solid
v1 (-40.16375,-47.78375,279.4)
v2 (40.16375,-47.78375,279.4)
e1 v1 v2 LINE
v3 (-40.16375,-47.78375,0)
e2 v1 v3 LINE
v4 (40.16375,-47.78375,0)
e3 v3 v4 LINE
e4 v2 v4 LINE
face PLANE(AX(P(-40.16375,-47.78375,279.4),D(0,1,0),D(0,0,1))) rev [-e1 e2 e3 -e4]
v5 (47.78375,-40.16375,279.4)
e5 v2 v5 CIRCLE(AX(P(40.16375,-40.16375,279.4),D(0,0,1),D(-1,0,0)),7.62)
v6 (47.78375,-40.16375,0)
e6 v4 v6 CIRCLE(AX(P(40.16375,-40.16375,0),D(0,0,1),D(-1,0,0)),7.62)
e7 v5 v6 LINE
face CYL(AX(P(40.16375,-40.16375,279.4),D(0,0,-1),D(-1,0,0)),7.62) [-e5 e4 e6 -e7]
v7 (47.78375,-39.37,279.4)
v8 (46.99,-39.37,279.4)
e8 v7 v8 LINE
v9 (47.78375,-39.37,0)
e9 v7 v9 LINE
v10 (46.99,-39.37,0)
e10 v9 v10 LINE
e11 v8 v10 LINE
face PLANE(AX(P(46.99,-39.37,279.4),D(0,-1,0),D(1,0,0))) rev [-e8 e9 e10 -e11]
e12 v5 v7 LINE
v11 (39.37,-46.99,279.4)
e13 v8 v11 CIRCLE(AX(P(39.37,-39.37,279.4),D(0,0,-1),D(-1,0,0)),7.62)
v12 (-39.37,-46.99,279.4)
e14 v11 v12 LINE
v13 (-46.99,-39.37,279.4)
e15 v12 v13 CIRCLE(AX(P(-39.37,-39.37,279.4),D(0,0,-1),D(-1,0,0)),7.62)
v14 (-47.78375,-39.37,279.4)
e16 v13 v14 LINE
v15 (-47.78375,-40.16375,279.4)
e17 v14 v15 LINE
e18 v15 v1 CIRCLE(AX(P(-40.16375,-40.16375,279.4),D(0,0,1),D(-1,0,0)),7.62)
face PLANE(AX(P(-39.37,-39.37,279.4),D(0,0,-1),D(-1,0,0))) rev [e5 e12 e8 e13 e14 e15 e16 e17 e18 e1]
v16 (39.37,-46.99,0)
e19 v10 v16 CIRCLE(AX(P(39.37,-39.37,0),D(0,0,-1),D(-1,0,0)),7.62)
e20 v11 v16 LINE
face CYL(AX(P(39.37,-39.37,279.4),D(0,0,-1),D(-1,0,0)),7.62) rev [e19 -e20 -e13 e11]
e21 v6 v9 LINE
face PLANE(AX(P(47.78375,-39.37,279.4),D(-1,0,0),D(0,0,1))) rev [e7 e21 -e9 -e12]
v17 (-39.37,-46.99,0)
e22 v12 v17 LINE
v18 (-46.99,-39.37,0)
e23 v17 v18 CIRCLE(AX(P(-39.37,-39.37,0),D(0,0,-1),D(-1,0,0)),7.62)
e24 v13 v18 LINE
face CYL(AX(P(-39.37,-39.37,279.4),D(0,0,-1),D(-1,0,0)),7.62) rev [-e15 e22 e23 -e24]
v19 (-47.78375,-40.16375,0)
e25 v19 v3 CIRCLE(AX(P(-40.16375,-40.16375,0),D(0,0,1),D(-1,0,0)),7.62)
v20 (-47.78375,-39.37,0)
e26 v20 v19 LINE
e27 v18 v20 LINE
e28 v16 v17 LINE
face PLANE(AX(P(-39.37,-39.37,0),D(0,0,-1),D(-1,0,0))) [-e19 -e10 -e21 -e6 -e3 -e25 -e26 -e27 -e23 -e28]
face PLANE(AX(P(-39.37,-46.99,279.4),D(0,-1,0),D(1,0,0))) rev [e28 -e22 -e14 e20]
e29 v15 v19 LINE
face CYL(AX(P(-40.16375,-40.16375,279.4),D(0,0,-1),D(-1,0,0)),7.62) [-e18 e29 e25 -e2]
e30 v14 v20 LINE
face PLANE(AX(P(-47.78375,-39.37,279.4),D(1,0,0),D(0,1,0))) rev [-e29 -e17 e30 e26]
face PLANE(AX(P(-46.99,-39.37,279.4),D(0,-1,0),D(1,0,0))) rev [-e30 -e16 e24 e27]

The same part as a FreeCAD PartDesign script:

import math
import FreeCAD as App
import Part
import Sketcher

V = App.Vector
Q = App.Units.Quantity

doc = App.newDocument("Part")
body = doc.addObject("PartDesign::Body", "Body")

# Sketch on XY plane
sketch1 = doc.addObject("Sketcher::SketchObject", "Sketch")
body.addObject(sketch1)
sketch1.AttachmentSupport = (doc.XY_Plane, [""])
sketch1.MapMode = "FlatFace"
sketch1.addGeometry([
    Part.LineSegment(V(47.8, -39.4, 0), V(47, -39.4, 0)),  # 0
    Part.ArcOfCircle(Part.Circle(V(39.4, -39.4, 0), V(0, 0, 1), 7.6), math.radians(-90), math.radians(0)),  # 1
    Part.LineSegment(V(39.4, -47, 0), V(-39.4, -47, 0)),  # 2
    Part.ArcOfCircle(Part.Circle(V(-39.4, -39.4, 0), V(0, 0, 1), 7.6), math.radians(180), math.radians(270)),  # 3
    Part.LineSegment(V(-47, -39.4, 0), V(-47.8, -39.4, 0)),  # 4
    Part.LineSegment(V(-47.8, -39.4, 0), V(-47.8, -40.2, 0)),  # 5
    Part.ArcOfCircle(Part.Circle(V(-40.2, -40.2, 0), V(0, 0, 1), 7.6), math.radians(180), math.radians(270)),  # 6
    Part.LineSegment(V(-40.2, -47.8, 0), V(40.2, -47.8, 0)),  # 7
    Part.ArcOfCircle(Part.Circle(V(40.2, -40.2, 0), V(0, 0, 1), 7.6), math.radians(-90), math.radians(0)),  # 8
    Part.LineSegment(V(47.8, -40.2, 0), V(47.8, -39.4, 0)),  # 9
], False)
sketch1.addConstraint([
    Sketcher.Constraint("Coincident", 0, 2, 1, 2),
    Sketcher.Constraint("Tangent", 1, 1, 2, 1),
    Sketcher.Constraint("Tangent", 2, 2, 3, 2),
    Sketcher.Constraint("Coincident", 3, 1, 4, 1),
    Sketcher.Constraint("Coincident", 4, 2, 5, 1),
    Sketcher.Constraint("Tangent", 5, 2, 6, 1),
    Sketcher.Constraint("Tangent", 6, 2, 7, 1),
    Sketcher.Constraint("Tangent", 7, 2, 8, 1),
    Sketcher.Constraint("Tangent", 8, 2, 9, 1),
    Sketcher.Constraint("Coincident", 9, 2, 0, 1),
    Sketcher.Constraint("Horizontal", 0),
    Sketcher.Constraint("Horizontal", 2),
    Sketcher.Constraint("Horizontal", 4),
    Sketcher.Constraint("Vertical", 5),
    Sketcher.Constraint("Horizontal", 7),
    Sketcher.Constraint("Vertical", 9),
    Sketcher.Constraint("Equal", 1, 3),
    Sketcher.Constraint("Equal", 3, 6),
    Sketcher.Constraint("Equal", 6, 8),
    Sketcher.Constraint("Symmetric", 0, 2, 3, 1, -2),
    Sketcher.Constraint("Horizontal", 3, 3, 0, 2),
    Sketcher.Constraint("Equal", 0, 4),
    Sketcher.Constraint("Equal", 4, 5),
    Sketcher.Constraint("Radius", 1, Q("0.3 in")),
    Sketcher.Constraint("DistanceX", 2, 2, 2, 1, Q("3.1 in")),
    Sketcher.Constraint("DistanceX", 0, 2, 0, 1, Q("0.03125 in")),
    Sketcher.Constraint("DistanceY", 1, 3, -1, 1, Q("1.55 in")),
])
pad1 = doc.addObject("PartDesign::Pad", "Pad")
body.addObject(pad1)
pad1.Profile = sketch1
pad1.Length = Q("11 in")

doc.recompute()
